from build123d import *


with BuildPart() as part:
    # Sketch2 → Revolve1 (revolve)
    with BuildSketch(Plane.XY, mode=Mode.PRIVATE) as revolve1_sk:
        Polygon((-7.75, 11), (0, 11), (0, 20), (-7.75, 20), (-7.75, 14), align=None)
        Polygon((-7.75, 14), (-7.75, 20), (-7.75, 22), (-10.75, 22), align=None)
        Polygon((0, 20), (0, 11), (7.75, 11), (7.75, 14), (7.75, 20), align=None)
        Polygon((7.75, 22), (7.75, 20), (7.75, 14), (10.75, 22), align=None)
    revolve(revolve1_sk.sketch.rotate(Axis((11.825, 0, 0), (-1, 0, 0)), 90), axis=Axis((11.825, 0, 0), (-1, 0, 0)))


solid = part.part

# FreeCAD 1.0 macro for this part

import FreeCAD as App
import Part
import Sketcher

V = App.Vector

doc = App.newDocument("Part")
params = doc.addObject("Spreadsheet::Sheet", "Params")
for row, (alias, value) in enumerate([
    ("sketch1_width", "3 mm"),
    ("sketch1_height", "2 mm"),
    ("sketch1_width2", "15.5 mm"),
    ("revolution_angle", "360 deg"),
], start=1):
    params.set(f"A{row}", alias)
    params.set(f"B{row}", "=" + value)
    params.setAlias(f"B{row}", alias)

body = doc.addObject("PartDesign::Body", "Body")

sketch1 = doc.addObject("Sketcher::SketchObject", "Sketch")
body.addObject(sketch1)
sketch1.AttachmentSupport = (doc.XY_Plane, [""])
sketch1.MapMode = "FlatFace"
sketch1.addGeometry(Part.LineSegment(V(-7.8, 11, 0), V(7.8, 11, 0)), False)
sketch1.addGeometry(Part.LineSegment(V(7.8, 11, 0), V(7.8, 14, 0)), False)
sketch1.addGeometry(Part.LineSegment(V(7.8, 14, 0), V(10.8, 22, 0)), False)
sketch1.addGeometry(Part.LineSegment(V(10.8, 22, 0), V(7.8, 22, 0)), False)
sketch1.addGeometry(Part.LineSegment(V(7.8, 22, 0), V(7.8, 20, 0)), False)
sketch1.addGeometry(Part.LineSegment(V(7.8, 20, 0), V(-7.8, 20, 0)), False)
sketch1.addGeometry(Part.LineSegment(V(-7.8, 20, 0), V(-7.8, 22, 0)), False)
sketch1.addGeometry(Part.LineSegment(V(-7.8, 22, 0), V(-10.8, 22, 0)), False)
sketch1.addGeometry(Part.LineSegment(V(-10.8, 22, 0), V(-7.8, 14, 0)), False)
sketch1.addGeometry(Part.LineSegment(V(-7.8, 14, 0), V(-7.8, 11, 0)), False)
sketch1.addConstraint(Sketcher.Constraint("Coincident", 0, 2, 1, 1))
sketch1.addConstraint(Sketcher.Constraint("Coincident", 1, 2, 2, 1))
sketch1.addConstraint(Sketcher.Constraint("Coincident", 2, 2, 3, 1))
sketch1.addConstraint(Sketcher.Constraint("Coincident", 3, 2, 4, 1))
sketch1.addConstraint(Sketcher.Constraint("Coincident", 4, 2, 5, 1))
sketch1.addConstraint(Sketcher.Constraint("Coincident", 5, 2, 6, 1))
sketch1.addConstraint(Sketcher.Constraint("Coincident", 6, 2, 7, 1))
sketch1.addConstraint(Sketcher.Constraint("Coincident", 7, 2, 8, 1))
sketch1.addConstraint(Sketcher.Constraint("Coincident", 8, 2, 9, 1))
sketch1.addConstraint(Sketcher.Constraint("Coincident", 9, 2, 0, 1))
sketch1.addConstraint(Sketcher.Constraint("Horizontal", 0))
sketch1.addConstraint(Sketcher.Constraint("Vertical", 1))
sketch1.addConstraint(Sketcher.Constraint("Horizontal", 3))
sketch1.addConstraint(Sketcher.Constraint("Vertical", 4))
sketch1.addConstraint(Sketcher.Constraint("Horizontal", 5))
sketch1.addConstraint(Sketcher.Constraint("Vertical", 6))
sketch1.addConstraint(Sketcher.Constraint("Horizontal", 7))
sketch1.addConstraint(Sketcher.Constraint("Vertical", 9))
sketch1.addConstraint(Sketcher.Constraint("Symmetric", 3, 2, 6, 2, -2))
sketch1.addConstraint(Sketcher.Constraint("Symmetric", 1, 2, 8, 2, -2))
sketch1.addConstraint(Sketcher.Constraint("Vertical", 1, 2, 3, 2))
sketch1.addConstraint(Sketcher.Constraint("Equal", 3, 7))
sketch1.addConstraint(Sketcher.Constraint("Equal", 7, 1))
sketch1.addConstraint(Sketcher.Constraint("DistanceX", 3, 2, 3, 1, 3.0))
sketch1.addConstraint(Sketcher.Constraint("DistanceY", 4, 2, 4, 1, 2.0))
sketch1.addConstraint(Sketcher.Constraint("DistanceX", 0, 1, 0, 2, 15.5))
sketch1.addConstraint(Sketcher.Constraint("DistanceY", -1, 1, 0, 2, 11.0))
sketch1.addConstraint(Sketcher.Constraint("DistanceY", -1, 1, 2, 2, 22.0))
sketch1.setExpression("Constraints[23]", "Params.sketch1_width")
sketch1.setExpression("Constraints[24]", "Params.sketch1_height")
sketch1.setExpression("Constraints[25]", "Params.sketch1_width2")
revolution = doc.addObject("PartDesign::Revolution", "Revolution")
body.addObject(revolution)
revolution.Profile = sketch1
revolution.ReferenceAxis = (sketch1, ["H_Axis"])
revolution.setExpression("Angle", "Params.revolution_angle")

doc.recompute()
